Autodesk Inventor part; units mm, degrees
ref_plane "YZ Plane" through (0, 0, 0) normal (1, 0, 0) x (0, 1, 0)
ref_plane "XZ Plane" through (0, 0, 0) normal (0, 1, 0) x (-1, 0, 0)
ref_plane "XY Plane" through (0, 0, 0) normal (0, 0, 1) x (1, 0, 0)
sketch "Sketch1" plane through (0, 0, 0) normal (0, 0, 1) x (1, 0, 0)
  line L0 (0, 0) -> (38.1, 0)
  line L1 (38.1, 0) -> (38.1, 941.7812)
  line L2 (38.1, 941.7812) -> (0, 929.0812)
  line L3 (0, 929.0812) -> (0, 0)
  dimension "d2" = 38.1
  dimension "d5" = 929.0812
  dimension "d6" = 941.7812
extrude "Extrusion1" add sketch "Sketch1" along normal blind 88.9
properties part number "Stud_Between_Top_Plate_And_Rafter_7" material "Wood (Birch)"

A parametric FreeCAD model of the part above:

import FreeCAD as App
import Part
import Sketcher
Q = App.Units.Quantity


def add_polygon(sketch, points):
    """Adds a closed chain of lines whose ends are joined by coincident constraints."""
    first, n = sketch.GeometryCount, len(points)
    for a, b in zip(points, points[1:] + points[:1]):
        sketch.addGeometry(Part.LineSegment(App.Vector(*a, 0), App.Vector(*b, 0)), False)
    for i in range(n):
        sketch.addConstraint(Sketcher.Constraint("Coincident", first + i, 2, first + (i + 1) % n, 1))

doc = App.newDocument("Part")
body = doc.addObject("PartDesign::Body", "Body")

# Sketch on XY plane
sketch1 = body.newObject("Sketcher::SketchObject", "Sketch")
sketch1.AttachmentSupport = (doc.getObject("XY_Plane"), [""])
sketch1.MapMode = "FlatFace"
add_polygon(sketch1, [(0, 929.0812), (0, 0), (38.1, 0), (38.1, 941.7812)])  # lines 0-3
sketch1.addConstraint(Sketcher.Constraint("Vertical", 0))
sketch1.addConstraint(Sketcher.Constraint("Horizontal", 1))
sketch1.addConstraint(Sketcher.Constraint("Vertical", 2))
sketch1.addConstraint(Sketcher.Constraint("Coincident", 0, 2, -1, 1))
sketch1.addConstraint(Sketcher.Constraint("DistanceX", 1, 1, 1, 2, Q("1.5 in")))
sketch1.addConstraint(Sketcher.Constraint("DistanceY", 0, 2, 0, 1, Q("36.578 in")))
sketch1.addConstraint(Sketcher.Constraint("DistanceY", 2, 1, 2, 2, Q("37.078 in")))
pad1 = body.newObject("PartDesign::Pad", "Pad")
pad1.Profile = sketch1
pad1.Length = Q("3.5 in")

doc.recompute()
